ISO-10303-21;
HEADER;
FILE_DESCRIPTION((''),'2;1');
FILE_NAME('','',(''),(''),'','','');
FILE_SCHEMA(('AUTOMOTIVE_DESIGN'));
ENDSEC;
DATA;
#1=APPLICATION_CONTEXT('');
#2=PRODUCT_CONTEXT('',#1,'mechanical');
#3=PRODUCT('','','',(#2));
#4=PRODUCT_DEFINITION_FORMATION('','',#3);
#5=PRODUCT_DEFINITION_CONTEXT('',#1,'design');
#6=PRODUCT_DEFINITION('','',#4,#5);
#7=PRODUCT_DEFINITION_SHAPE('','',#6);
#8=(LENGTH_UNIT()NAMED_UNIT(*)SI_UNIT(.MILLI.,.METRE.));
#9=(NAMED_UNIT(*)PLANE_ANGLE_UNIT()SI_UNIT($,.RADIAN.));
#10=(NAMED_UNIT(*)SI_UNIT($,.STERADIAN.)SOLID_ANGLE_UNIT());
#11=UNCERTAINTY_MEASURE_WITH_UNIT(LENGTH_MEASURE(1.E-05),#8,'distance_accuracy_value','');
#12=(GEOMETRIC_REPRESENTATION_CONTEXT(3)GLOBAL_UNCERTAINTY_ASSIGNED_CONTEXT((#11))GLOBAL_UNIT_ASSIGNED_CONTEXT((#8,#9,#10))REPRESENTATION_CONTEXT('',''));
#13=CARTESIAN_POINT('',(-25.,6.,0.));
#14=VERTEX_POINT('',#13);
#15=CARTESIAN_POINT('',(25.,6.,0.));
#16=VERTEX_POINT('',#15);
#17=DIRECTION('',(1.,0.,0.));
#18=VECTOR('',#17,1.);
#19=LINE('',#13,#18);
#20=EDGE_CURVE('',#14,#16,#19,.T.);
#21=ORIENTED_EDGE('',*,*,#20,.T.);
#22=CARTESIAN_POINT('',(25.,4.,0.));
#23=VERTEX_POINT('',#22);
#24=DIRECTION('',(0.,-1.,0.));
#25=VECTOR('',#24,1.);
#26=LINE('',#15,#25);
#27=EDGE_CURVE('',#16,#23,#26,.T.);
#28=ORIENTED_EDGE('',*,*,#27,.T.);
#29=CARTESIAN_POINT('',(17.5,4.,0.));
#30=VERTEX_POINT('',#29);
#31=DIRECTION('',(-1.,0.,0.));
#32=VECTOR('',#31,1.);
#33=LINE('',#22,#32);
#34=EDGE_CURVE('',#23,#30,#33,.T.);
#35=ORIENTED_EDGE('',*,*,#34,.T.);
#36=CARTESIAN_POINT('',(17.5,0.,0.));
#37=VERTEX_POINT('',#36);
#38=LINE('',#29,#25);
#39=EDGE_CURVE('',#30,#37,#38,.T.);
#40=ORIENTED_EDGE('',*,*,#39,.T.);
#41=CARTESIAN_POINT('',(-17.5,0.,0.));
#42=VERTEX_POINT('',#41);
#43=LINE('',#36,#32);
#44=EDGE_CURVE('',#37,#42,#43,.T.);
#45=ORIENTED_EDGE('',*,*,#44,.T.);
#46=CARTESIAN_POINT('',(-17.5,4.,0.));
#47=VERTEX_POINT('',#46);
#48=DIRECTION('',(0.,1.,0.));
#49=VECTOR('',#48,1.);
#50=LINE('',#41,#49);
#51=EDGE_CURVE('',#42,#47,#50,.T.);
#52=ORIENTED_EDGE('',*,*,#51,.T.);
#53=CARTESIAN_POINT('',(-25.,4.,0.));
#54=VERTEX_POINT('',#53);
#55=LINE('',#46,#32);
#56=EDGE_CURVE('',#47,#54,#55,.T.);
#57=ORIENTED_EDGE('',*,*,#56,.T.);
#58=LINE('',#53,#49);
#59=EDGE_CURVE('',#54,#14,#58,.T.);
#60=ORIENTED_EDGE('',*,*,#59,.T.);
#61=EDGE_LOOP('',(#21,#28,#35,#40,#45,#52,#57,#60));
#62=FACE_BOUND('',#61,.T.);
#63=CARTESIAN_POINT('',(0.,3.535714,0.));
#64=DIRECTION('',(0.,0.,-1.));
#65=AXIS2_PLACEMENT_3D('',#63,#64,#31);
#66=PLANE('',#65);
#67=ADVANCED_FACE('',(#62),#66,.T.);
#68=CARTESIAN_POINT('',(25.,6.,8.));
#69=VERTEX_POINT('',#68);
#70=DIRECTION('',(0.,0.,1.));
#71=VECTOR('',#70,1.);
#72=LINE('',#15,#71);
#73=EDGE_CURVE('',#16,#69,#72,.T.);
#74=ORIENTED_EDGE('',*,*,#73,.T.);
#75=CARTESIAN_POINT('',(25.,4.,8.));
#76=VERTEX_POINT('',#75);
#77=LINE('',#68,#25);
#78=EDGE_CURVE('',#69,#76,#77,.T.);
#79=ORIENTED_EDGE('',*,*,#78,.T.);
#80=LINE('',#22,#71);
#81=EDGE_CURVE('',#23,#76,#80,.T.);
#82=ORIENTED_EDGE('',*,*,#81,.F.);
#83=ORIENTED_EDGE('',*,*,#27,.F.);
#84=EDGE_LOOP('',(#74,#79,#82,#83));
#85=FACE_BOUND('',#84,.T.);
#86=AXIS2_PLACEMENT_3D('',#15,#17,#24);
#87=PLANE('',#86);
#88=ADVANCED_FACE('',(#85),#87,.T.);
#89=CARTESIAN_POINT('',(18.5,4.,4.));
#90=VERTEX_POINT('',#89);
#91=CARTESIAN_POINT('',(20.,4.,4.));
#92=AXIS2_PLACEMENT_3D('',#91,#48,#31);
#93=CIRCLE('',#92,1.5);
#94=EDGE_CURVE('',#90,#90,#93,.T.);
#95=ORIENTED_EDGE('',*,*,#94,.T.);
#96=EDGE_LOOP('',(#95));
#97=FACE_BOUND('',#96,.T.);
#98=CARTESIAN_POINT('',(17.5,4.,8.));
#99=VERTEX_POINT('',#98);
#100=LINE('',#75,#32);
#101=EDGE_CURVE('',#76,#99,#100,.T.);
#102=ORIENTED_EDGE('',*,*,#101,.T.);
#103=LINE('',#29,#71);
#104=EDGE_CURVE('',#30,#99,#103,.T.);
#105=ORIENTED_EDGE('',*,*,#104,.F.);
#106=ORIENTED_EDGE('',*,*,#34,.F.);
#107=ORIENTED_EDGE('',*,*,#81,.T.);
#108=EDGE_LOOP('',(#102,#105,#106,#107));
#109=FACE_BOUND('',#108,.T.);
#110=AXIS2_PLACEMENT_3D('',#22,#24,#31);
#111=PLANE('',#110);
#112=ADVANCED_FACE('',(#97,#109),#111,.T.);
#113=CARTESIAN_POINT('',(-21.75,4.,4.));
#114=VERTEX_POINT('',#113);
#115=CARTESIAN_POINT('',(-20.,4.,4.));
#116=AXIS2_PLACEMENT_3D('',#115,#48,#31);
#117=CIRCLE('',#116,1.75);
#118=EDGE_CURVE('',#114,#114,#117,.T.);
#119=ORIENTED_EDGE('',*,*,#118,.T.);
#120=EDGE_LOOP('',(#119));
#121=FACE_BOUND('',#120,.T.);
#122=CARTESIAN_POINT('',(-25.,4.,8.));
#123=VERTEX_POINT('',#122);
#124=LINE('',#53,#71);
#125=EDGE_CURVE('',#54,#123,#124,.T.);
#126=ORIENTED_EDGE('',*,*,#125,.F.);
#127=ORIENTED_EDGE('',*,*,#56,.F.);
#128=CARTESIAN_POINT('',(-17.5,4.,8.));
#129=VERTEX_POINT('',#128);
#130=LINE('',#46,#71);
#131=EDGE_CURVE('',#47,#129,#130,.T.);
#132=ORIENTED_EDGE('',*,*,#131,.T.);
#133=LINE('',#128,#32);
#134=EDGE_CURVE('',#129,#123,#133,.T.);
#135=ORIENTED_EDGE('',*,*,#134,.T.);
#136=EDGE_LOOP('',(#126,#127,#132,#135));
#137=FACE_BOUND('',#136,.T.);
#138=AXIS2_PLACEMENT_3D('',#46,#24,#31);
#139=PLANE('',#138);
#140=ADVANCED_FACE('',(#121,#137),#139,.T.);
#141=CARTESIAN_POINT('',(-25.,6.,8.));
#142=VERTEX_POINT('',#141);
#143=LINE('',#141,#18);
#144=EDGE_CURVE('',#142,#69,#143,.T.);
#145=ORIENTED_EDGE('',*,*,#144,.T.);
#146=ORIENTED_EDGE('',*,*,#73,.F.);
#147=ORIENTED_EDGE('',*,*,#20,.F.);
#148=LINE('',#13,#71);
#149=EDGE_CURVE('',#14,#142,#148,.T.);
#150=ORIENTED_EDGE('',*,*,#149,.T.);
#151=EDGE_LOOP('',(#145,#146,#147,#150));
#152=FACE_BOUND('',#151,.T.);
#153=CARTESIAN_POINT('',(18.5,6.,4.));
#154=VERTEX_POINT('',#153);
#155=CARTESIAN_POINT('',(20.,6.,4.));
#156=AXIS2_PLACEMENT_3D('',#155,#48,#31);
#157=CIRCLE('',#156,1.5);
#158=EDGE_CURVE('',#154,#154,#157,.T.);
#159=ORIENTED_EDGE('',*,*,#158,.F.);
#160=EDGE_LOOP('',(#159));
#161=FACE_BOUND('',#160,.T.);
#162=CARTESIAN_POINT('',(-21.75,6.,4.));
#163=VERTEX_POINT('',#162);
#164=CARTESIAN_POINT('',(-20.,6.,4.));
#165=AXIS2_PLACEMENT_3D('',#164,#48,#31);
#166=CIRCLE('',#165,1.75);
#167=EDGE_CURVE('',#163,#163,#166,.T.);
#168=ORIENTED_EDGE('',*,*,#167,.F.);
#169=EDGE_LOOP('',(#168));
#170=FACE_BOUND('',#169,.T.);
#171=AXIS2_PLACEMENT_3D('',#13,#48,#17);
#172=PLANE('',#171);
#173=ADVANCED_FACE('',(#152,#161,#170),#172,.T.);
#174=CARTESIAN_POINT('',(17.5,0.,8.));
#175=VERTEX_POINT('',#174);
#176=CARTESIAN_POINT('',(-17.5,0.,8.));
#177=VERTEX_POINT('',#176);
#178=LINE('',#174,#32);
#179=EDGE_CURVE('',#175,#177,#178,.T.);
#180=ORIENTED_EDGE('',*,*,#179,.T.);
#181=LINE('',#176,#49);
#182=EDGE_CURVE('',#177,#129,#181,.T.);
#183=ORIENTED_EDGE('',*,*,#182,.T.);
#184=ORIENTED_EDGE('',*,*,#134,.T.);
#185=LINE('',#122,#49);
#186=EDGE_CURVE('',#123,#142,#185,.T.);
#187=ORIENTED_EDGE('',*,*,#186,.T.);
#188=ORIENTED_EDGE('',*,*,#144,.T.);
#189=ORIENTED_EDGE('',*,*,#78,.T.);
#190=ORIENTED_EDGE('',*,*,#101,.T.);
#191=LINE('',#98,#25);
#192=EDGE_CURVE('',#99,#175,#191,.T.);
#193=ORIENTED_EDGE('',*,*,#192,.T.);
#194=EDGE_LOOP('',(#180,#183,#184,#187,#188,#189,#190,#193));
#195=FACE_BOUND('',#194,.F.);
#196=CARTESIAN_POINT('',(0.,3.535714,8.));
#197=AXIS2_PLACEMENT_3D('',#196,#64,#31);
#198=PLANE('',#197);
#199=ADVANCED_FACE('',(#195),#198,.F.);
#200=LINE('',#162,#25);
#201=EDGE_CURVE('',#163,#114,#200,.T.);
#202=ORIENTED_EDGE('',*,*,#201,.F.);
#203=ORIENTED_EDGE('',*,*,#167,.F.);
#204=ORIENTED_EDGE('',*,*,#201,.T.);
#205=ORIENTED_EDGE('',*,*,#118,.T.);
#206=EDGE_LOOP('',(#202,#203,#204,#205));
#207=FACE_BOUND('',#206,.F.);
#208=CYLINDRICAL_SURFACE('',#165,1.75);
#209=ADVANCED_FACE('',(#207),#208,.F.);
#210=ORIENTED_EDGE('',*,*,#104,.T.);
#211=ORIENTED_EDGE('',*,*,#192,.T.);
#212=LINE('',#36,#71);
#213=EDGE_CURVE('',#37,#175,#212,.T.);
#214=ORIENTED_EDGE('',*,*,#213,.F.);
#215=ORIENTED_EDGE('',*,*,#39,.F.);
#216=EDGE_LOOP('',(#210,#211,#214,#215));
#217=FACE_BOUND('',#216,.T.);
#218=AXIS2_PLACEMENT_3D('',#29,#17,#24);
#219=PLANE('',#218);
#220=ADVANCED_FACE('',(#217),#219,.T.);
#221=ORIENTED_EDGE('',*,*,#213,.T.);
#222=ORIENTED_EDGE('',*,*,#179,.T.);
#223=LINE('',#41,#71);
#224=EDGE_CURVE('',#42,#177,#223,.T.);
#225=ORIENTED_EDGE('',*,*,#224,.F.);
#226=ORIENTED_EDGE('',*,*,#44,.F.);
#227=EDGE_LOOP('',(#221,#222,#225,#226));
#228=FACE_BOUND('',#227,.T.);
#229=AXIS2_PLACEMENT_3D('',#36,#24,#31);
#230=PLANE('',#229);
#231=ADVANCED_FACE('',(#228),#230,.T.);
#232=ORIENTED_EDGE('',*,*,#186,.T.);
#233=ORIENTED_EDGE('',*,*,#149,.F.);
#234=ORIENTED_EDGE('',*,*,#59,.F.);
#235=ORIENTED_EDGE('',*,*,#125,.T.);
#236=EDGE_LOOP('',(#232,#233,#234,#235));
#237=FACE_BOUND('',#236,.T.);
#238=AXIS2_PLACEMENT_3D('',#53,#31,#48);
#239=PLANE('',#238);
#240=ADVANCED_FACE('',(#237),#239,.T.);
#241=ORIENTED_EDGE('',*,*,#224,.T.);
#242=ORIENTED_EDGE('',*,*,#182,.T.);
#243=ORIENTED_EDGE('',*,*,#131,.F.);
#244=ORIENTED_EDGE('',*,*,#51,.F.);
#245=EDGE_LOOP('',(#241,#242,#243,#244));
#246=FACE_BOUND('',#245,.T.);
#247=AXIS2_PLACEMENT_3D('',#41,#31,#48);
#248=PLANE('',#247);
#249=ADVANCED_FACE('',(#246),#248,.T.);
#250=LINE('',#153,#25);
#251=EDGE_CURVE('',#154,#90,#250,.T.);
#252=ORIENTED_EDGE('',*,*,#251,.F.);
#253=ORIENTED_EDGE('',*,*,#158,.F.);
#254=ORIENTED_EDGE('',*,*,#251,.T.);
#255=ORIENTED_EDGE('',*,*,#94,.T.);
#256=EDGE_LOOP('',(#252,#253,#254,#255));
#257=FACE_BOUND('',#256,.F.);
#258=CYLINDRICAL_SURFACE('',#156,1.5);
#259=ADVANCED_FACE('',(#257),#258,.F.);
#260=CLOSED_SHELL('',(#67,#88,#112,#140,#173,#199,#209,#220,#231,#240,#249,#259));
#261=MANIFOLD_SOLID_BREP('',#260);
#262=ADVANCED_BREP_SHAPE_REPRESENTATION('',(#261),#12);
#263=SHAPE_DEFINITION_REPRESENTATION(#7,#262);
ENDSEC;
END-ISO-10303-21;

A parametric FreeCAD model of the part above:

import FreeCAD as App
import Part
import Sketcher

doc = App.newDocument("Part")
body = doc.addObject("PartDesign::Body", "Body")

# Sketch on XY plane
sketch1 = body.newObject("Sketcher::SketchObject", "Sketch")
sketch1.AttachmentSupport = (doc.getObject("XY_Plane"), [""])
sketch1.MapMode = "FlatFace"
sketch1.addGeometry(Part.LineSegment(App.Vector(25, 6, 0), App.Vector(-25, 6, 0)), False)
sketch1.addGeometry(Part.LineSegment(App.Vector(-25, 6, 0), App.Vector(-25, 4, 0)), False)
sketch1.addGeometry(Part.LineSegment(App.Vector(-25, 4, 0), App.Vector(-17.5, 4, 0)), False)
sketch1.addGeometry(Part.LineSegment(App.Vector(-17.5, 4, 0), App.Vector(-17.5, 0, 0)), False)
sketch1.addGeometry(Part.LineSegment(App.Vector(-17.5, 0, 0), App.Vector(17.5, 0, 0)), False)
sketch1.addGeometry(Part.LineSegment(App.Vector(17.5, 0, 0), App.Vector(17.5, 4, 0)), False)
sketch1.addGeometry(Part.LineSegment(App.Vector(17.5, 4, 0), App.Vector(25, 4, 0)), False)
sketch1.addGeometry(Part.LineSegment(App.Vector(25, 4, 0), App.Vector(25, 6, 0)), False)
sketch1.addConstraint(Sketcher.Constraint("Coincident", 0, 2, 1, 1))
sketch1.addConstraint(Sketcher.Constraint("Coincident", 1, 2, 2, 1))
sketch1.addConstraint(Sketcher.Constraint("Coincident", 2, 2, 3, 1))
sketch1.addConstraint(Sketcher.Constraint("Coincident", 3, 2, 4, 1))
sketch1.addConstraint(Sketcher.Constraint("Coincident", 4, 2, 5, 1))
sketch1.addConstraint(Sketcher.Constraint("Coincident", 5, 2, 6, 1))
sketch1.addConstraint(Sketcher.Constraint("Coincident", 6, 2, 7, 1))
sketch1.addConstraint(Sketcher.Constraint("Coincident", 7, 2, 0, 1))
sketch1.addConstraint(Sketcher.Constraint("Horizontal", 0))
sketch1.addConstraint(Sketcher.Constraint("Vertical", 1))
sketch1.addConstraint(Sketcher.Constraint("Horizontal", 2))
sketch1.addConstraint(Sketcher.Constraint("Vertical", 3))
sketch1.addConstraint(Sketcher.Constraint("Horizontal", 4))
sketch1.addConstraint(Sketcher.Constraint("Vertical", 5))
sketch1.addConstraint(Sketcher.Constraint("Horizontal", 6))
sketch1.addConstraint(Sketcher.Constraint("Vertical", 7))
sketch1.addConstraint(Sketcher.Constraint("Symmetric", 3, 2, 4, 2, -1, 1))
sketch1.addConstraint(Sketcher.Constraint("Symmetric", 1, 2, 6, 2, -2))
sketch1.addConstraint(Sketcher.Constraint("DistanceX", 0, 2, 0, 1, 50.0))
sketch1.addConstraint(Sketcher.Constraint("DistanceX", 4, 1, 4, 2, 35.0))
sketch1.addConstraint(Sketcher.Constraint("DistanceY", 1, 2, 1, 1, 2.0))
sketch1.addConstraint(Sketcher.Constraint("DistanceY", 3, 2, 3, 1, 4.0))
pad1 = body.newObject("PartDesign::Pad", "Pad")
pad1.Profile = sketch1
pad1.Length = 8

# Sketch on XZ plane
sketch2 = body.newObject("Sketcher::SketchObject", "Sketch001")
sketch2.AttachmentSupport = (doc.getObject("XZ_Plane"), [""])
sketch2.MapMode = "FlatFace"
sketch2.AttachmentOffset = App.Placement(App.Vector(0, 0, -6), App.Rotation())
sketch2.addGeometry(Part.Circle(App.Vector(-20, 4, 0), App.Vector(0, 0, 1), 1.75), False)
sketch2.addGeometry(Part.Circle(App.Vector(20, 4, 0), App.Vector(0, 0, 1), 1.5), False)
sketch2.addConstraint(Sketcher.Constraint("Symmetric", 0, 3, 1, 3, -2))
sketch2.addConstraint(Sketcher.Constraint("Diameter", 1, 3.0))
sketch2.addConstraint(Sketcher.Constraint("Diameter", 0, 3.5))
sketch2.addConstraint(Sketcher.Constraint("DistanceX", 0, 3, -1, 1, 20.0))
sketch2.addConstraint(Sketcher.Constraint("DistanceY", -1, 1, 0, 3, 4.0))
pocket1 = body.newObject("PartDesign::Pocket", "Pocket")
pocket1.Profile = sketch2
pocket1.Length = 5
pocket1.Reversed = True

doc.recompute()
